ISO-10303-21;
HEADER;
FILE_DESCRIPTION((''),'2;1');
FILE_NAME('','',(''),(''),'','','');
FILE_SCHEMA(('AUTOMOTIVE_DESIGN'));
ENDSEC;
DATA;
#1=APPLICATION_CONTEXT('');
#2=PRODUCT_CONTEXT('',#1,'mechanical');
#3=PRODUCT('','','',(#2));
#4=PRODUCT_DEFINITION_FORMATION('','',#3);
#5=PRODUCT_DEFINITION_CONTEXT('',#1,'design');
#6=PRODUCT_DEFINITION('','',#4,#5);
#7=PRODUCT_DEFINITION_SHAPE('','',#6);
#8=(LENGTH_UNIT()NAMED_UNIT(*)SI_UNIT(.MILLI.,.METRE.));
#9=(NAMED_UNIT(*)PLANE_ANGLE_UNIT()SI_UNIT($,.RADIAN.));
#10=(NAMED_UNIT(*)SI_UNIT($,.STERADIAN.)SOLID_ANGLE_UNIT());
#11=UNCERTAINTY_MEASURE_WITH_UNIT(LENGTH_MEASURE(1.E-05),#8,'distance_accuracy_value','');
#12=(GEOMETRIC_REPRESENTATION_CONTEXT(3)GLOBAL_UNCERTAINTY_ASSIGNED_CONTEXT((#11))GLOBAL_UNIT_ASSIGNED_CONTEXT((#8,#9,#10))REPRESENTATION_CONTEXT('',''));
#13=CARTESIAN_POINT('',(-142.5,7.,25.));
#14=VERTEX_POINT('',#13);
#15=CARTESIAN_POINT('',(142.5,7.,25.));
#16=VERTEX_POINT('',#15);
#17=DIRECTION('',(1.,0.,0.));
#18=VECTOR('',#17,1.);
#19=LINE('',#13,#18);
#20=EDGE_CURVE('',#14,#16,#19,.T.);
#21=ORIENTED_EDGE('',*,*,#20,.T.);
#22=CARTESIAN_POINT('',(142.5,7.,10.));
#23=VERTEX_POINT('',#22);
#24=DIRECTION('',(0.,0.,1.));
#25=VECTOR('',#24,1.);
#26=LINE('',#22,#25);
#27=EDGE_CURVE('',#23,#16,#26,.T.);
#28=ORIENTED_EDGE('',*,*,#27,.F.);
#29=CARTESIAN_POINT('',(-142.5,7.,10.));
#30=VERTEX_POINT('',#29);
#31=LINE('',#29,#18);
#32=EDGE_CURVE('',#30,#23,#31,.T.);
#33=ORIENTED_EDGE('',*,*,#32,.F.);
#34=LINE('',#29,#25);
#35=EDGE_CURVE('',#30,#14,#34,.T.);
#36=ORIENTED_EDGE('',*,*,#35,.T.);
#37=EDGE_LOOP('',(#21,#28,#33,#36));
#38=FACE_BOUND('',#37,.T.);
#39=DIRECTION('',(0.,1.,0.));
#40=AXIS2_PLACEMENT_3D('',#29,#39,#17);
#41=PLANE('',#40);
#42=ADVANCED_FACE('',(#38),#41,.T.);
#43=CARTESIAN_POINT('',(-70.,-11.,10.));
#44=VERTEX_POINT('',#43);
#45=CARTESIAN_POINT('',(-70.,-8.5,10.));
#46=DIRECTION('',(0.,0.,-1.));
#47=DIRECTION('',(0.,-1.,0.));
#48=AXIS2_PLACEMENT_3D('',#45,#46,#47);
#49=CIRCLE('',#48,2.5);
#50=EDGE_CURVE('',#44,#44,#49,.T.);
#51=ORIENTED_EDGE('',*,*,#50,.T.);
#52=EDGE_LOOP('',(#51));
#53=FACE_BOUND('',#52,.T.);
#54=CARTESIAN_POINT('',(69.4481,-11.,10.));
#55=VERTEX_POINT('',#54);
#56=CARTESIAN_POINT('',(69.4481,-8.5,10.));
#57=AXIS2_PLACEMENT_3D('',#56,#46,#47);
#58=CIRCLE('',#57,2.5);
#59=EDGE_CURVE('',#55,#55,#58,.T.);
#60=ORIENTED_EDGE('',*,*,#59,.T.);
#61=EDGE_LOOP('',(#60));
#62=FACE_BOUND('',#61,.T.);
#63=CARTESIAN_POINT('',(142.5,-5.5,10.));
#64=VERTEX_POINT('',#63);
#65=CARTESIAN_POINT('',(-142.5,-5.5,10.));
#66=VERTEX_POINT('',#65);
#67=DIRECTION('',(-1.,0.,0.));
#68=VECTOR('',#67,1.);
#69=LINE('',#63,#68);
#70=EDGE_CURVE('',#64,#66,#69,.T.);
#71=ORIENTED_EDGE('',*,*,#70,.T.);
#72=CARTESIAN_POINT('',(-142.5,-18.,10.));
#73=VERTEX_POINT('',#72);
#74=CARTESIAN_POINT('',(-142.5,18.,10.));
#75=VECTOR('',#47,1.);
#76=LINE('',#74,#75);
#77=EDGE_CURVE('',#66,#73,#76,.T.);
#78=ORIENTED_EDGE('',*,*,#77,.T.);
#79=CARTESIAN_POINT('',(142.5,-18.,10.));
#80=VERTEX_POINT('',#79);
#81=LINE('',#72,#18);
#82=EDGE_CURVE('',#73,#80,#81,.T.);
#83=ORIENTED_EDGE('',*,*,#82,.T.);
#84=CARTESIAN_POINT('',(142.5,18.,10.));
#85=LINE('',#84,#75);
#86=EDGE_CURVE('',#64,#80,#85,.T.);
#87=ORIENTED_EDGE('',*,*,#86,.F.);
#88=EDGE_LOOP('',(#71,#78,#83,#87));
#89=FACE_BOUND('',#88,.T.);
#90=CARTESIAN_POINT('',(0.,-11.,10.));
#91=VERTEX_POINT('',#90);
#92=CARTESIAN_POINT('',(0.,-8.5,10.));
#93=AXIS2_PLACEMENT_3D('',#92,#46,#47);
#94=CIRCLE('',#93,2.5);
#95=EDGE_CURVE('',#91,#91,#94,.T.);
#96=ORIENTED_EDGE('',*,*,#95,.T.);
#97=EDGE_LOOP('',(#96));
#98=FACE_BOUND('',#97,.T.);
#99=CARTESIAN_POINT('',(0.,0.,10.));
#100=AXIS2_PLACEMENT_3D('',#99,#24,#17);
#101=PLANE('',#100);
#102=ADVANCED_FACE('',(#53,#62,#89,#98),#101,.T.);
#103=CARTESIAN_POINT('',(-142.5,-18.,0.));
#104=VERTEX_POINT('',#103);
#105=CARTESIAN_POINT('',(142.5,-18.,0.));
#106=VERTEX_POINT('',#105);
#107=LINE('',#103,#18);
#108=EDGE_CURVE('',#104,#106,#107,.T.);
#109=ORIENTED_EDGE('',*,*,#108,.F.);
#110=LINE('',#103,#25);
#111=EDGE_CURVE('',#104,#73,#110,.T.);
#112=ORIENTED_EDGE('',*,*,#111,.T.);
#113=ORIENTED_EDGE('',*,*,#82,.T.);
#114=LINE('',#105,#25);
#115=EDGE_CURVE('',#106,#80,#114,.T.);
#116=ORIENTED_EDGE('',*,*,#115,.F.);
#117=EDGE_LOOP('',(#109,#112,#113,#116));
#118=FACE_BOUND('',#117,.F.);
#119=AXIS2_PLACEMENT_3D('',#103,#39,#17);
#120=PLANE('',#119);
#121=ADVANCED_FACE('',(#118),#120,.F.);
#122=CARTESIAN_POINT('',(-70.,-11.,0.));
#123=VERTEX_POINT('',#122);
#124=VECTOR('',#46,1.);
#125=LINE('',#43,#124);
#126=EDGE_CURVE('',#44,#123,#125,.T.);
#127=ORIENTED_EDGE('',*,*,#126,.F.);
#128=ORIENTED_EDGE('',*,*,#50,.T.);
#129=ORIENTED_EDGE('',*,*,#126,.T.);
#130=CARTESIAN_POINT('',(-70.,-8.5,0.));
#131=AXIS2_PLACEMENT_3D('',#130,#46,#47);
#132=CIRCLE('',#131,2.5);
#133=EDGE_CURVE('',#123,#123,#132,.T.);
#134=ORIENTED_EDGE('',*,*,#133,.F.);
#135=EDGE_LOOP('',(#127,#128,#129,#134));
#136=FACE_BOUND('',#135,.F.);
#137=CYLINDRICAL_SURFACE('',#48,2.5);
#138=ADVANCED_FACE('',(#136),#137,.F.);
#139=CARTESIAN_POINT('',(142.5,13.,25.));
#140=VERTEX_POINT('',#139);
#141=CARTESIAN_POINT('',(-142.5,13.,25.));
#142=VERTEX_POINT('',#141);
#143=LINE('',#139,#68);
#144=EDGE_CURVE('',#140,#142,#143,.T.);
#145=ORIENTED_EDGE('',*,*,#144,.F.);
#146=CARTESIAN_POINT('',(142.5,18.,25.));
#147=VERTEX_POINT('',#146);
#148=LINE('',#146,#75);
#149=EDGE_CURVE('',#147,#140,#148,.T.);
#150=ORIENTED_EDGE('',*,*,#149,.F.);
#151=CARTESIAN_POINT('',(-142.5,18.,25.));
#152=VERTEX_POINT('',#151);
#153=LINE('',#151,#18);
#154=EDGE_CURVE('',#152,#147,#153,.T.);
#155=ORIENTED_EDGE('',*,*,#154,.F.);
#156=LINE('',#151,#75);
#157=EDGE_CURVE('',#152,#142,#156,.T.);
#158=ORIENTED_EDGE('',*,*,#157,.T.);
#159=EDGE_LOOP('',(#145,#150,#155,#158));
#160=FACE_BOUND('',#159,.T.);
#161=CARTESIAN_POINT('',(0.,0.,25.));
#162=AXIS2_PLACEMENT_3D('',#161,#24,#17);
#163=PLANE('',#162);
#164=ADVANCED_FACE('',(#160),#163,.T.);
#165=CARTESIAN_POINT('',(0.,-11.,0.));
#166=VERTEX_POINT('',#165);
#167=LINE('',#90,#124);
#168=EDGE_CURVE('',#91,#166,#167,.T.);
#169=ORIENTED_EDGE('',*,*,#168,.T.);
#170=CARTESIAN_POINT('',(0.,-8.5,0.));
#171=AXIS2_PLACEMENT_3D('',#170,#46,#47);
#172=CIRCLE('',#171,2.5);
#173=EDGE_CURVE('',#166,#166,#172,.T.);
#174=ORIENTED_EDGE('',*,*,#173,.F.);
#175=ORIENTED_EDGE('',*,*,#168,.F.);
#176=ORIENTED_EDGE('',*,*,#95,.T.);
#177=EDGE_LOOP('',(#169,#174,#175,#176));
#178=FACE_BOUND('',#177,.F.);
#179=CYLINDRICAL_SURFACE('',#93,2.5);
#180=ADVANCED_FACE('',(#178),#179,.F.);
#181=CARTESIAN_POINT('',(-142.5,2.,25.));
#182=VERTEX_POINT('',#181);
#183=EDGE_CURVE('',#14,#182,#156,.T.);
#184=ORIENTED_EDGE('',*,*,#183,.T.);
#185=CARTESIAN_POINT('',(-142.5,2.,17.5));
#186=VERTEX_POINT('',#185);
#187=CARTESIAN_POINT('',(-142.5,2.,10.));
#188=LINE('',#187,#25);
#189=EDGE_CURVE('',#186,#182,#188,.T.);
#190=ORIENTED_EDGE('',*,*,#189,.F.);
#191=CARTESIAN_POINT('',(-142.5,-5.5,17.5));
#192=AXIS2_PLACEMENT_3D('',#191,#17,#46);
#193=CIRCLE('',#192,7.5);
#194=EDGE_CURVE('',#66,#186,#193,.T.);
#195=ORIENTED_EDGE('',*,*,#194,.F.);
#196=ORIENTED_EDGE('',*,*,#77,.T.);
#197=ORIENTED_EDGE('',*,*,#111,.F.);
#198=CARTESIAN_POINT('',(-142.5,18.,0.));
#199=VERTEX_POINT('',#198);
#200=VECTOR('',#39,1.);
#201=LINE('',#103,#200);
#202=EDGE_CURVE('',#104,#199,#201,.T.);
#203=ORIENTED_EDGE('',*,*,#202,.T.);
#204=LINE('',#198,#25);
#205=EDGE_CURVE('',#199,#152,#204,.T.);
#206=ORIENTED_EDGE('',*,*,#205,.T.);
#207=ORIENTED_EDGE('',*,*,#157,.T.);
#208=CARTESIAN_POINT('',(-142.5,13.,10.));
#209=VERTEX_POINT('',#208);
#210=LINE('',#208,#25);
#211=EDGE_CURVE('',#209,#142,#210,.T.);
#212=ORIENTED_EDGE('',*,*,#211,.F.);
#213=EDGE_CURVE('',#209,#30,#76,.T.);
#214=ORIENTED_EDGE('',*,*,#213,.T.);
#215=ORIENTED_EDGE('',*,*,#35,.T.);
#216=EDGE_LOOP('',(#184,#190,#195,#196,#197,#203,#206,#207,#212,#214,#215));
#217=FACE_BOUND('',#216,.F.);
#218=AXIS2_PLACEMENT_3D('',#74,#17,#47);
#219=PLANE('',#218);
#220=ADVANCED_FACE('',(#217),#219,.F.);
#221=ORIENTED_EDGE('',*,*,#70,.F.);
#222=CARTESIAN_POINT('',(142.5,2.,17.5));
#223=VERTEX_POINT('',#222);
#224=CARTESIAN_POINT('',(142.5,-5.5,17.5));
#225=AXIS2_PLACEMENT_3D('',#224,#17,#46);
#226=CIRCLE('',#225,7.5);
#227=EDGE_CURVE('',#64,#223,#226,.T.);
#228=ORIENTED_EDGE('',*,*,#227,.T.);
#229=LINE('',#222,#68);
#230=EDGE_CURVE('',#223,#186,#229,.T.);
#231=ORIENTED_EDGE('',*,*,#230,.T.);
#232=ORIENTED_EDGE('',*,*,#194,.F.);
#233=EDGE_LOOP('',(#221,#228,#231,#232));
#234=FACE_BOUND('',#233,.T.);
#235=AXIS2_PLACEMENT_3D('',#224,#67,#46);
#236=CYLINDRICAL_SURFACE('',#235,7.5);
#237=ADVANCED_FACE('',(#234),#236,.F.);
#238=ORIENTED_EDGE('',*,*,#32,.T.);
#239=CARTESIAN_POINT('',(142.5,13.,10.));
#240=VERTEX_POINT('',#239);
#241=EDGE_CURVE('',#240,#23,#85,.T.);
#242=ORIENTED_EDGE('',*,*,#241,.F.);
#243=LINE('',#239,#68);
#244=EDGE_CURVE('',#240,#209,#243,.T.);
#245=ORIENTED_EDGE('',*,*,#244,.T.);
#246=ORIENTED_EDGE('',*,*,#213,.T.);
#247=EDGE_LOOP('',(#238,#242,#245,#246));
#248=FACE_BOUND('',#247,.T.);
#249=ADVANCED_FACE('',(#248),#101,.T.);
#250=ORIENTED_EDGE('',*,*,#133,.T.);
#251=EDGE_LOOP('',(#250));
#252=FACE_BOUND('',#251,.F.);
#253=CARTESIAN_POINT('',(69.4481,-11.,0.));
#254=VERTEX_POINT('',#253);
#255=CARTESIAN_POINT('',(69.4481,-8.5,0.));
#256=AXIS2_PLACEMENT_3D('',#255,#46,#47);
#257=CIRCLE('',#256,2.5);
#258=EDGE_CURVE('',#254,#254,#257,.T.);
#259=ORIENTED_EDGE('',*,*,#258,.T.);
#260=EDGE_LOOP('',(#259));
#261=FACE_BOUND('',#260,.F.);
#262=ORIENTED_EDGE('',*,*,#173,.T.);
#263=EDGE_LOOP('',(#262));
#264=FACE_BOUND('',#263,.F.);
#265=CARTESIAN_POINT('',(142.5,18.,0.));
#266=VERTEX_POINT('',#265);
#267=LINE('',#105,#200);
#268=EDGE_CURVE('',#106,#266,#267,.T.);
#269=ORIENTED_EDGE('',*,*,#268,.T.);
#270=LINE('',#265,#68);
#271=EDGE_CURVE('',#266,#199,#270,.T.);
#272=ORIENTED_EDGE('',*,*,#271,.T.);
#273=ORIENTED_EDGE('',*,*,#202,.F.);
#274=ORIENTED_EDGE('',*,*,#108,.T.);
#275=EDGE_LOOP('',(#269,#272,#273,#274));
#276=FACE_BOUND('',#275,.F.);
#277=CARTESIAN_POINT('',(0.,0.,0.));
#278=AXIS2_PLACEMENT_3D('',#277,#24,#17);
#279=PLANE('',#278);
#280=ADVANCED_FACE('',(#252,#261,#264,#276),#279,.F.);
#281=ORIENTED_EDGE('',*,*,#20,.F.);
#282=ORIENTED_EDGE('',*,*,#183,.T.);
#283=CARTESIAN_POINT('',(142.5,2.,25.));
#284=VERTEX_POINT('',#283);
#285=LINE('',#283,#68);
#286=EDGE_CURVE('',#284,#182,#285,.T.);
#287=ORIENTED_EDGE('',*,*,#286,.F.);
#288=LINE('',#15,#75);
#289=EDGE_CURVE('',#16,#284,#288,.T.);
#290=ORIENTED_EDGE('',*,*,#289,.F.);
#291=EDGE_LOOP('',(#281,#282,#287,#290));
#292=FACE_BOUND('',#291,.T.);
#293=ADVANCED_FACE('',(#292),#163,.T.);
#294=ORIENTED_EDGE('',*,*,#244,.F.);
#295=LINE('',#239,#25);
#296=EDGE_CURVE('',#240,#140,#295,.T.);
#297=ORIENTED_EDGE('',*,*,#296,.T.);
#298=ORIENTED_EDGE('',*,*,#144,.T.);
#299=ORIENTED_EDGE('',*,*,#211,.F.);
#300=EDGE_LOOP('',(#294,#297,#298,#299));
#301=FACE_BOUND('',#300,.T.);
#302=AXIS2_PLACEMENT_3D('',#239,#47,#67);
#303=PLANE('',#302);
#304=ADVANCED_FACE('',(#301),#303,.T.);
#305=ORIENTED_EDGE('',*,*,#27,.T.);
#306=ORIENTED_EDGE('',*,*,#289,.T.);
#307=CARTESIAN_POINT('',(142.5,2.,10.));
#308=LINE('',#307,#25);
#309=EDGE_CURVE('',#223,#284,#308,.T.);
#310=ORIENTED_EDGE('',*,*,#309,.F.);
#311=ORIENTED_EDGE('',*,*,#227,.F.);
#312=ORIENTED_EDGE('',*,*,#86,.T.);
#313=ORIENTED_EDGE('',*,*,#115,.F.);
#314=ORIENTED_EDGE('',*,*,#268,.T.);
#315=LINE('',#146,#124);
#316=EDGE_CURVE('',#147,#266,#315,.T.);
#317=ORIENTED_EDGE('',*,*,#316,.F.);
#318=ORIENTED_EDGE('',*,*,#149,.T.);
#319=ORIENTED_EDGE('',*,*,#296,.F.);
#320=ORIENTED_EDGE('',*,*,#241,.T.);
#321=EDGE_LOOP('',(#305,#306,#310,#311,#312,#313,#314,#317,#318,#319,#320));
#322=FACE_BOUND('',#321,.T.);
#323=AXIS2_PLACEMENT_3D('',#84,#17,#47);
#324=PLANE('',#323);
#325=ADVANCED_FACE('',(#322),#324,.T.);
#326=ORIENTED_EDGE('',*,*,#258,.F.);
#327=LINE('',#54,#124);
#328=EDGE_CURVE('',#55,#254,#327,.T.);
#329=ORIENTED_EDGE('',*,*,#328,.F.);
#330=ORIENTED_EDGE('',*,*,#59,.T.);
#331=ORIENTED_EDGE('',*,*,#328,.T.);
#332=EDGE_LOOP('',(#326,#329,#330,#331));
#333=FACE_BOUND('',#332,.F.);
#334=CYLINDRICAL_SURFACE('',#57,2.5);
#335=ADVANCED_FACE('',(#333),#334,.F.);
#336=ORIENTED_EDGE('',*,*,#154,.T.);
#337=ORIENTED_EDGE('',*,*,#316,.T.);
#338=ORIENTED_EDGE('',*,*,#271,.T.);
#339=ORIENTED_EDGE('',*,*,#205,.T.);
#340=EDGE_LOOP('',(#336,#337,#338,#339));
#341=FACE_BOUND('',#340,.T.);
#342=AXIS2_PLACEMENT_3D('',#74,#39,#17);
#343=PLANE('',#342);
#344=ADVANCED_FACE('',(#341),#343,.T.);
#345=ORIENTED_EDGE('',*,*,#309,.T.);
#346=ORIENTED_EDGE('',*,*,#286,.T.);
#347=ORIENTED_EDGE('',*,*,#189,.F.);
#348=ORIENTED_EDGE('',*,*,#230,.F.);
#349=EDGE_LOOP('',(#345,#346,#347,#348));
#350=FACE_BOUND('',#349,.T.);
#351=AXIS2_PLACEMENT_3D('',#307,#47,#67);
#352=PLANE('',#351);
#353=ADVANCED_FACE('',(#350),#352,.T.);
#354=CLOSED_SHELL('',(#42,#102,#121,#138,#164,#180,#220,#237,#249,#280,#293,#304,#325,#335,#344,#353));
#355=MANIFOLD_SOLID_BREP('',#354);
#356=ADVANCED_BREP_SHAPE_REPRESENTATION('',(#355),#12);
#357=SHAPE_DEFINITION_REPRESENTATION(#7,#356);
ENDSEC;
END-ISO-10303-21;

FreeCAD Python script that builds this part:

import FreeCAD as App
import Part
import Sketcher

V = App.Vector
Q = App.Units.Quantity


def edges_at(feature, points):
    """Names of the edges that pass closest to the given points."""
    edges = feature.Shape.Edges
    near = lambda p: min(range(len(edges)), key=lambda i: edges[i].distToShape(Part.Vertex(*p))[0])
    return sorted({f"Edge{near(p) + 1}" for p in points})


def add_polygon(sketch, points):
    """Adds a closed chain of lines whose ends are joined by coincident constraints."""
    first, n = sketch.GeometryCount, len(points)
    for a, b in zip(points, points[1:] + points[:1]):
        sketch.addGeometry(Part.LineSegment(App.Vector(*a, 0), App.Vector(*b, 0)), False)
    for i in range(n):
        sketch.addConstraint(Sketcher.Constraint("Coincident", first + i, 2, first + (i + 1) % n, 1))

doc = App.newDocument("Part")
body = doc.addObject("PartDesign::Body", "Body")

# Sketch on XY plane
sketch1 = body.newObject("Sketcher::SketchObject", "Sketch")
sketch1.AttachmentSupport = (doc.getObject("XY_Plane"), [""])
sketch1.MapMode = "FlatFace"
add_polygon(sketch1, [(142, 18), (-142, 18), (-142, -18), (142, -18)])  # lines 0-3
sketch1.addConstraint(Sketcher.Constraint("Horizontal", 0))
sketch1.addConstraint(Sketcher.Constraint("Vertical", 1))
sketch1.addConstraint(Sketcher.Constraint("Horizontal", 2))
sketch1.addConstraint(Sketcher.Constraint("Vertical", 3))
sketch1.addConstraint(Sketcher.Constraint("Symmetric", 0, 2, 2, 2, -1, 1))
sketch1.addConstraint(Sketcher.Constraint("DistanceX", 0, 2, 0, 1, Q("285 mm")))
sketch1.addConstraint(Sketcher.Constraint("DistanceY", 1, 2, 1, 1, Q("36 mm")))
pad1 = body.newObject("PartDesign::Pad", "Pad")
pad1.Profile = sketch1
pad1.Length = 10

# Sketch on XY plane
sketch2 = body.newObject("Sketcher::SketchObject", "Sketch001")
sketch2.AttachmentSupport = (doc.getObject("XY_Plane"), [""])
sketch2.MapMode = "FlatFace"
sketch2.AttachmentOffset = App.Placement(V(0, 0, 10), App.Rotation())
add_polygon(sketch2, [(142, 18), (-142, 18), (-142, 13), (142, 13)])  # lines 0-3
sketch2.addConstraint(Sketcher.Constraint("Horizontal", 0))
sketch2.addConstraint(Sketcher.Constraint("Vertical", 1))
sketch2.addConstraint(Sketcher.Constraint("Horizontal", 2))
sketch2.addConstraint(Sketcher.Constraint("Vertical", 3))
sketch2.addConstraint(Sketcher.Constraint("DistanceX", 0, 2, 0, 1, Q("285 mm")))
sketch2.addConstraint(Sketcher.Constraint("DistanceY", 1, 2, 1, 1, Q("5 mm")))
sketch2.addConstraint(Sketcher.Constraint("DistanceY", -1, 1, 0, 2, Q("18 mm")))
sketch2.addConstraint(Sketcher.Constraint("DistanceX", 0, 2, -1, 1, Q("142.5 mm")))
pad2 = body.newObject("PartDesign::Pad", "Pad001")
pad2.Profile = sketch2
pad2.Length = 15

# Sketch on XY plane
sketch3 = body.newObject("Sketcher::SketchObject", "Sketch002")
sketch3.AttachmentSupport = (doc.getObject("XY_Plane"), [""])
sketch3.MapMode = "FlatFace"
sketch3.AttachmentOffset = App.Placement(V(0, 0, 10), App.Rotation())
add_polygon(sketch3, [(142, 7), (-142, 7), (-142, 2), (142, 2)])  # lines 0-3
sketch3.addConstraint(Sketcher.Constraint("Horizontal", 0))
sketch3.addConstraint(Sketcher.Constraint("Vertical", 1))
sketch3.addConstraint(Sketcher.Constraint("Horizontal", 2))
sketch3.addConstraint(Sketcher.Constraint("Vertical", 3))
sketch3.addConstraint(Sketcher.Constraint("DistanceX", 0, 2, 0, 1, Q("285 mm")))
sketch3.addConstraint(Sketcher.Constraint("DistanceY", 1, 2, 1, 1, Q("5 mm")))
sketch3.addConstraint(Sketcher.Constraint("DistanceY", -1, 1, 0, 2, Q("7 mm")))
sketch3.addConstraint(Sketcher.Constraint("DistanceX", 0, 2, -1, 1, Q("142.5 mm")))
pad3 = body.newObject("PartDesign::Pad", "Pad002")
pad3.Profile = sketch3
pad3.Length = 15
doc.recompute()

fillet = body.newObject("PartDesign::Fillet", "Fillet")
fillet.Base = (pad3, edges_at(pad3, [(0, 2, 10)]))
fillet.Radius = 7.5

# Sketch on XY plane
sketch4 = body.newObject("Sketcher::SketchObject", "Sketch003")
sketch4.AttachmentSupport = (doc.getObject("XY_Plane"), [""])
sketch4.MapMode = "FlatFace"
sketch4.AttachmentOffset = App.Placement(V(0, 0, 10), App.Rotation())
sketch4.addGeometry(Part.Circle(V(-70, -8.5, 0), V(0, 0, 1), 2.5), False)
sketch4.addConstraint(Sketcher.Constraint("Diameter", 0, Q("5 mm")))
sketch4.addConstraint(Sketcher.Constraint("DistanceX", 0, 3, -1, 1, Q("70 mm")))
sketch4.addConstraint(Sketcher.Constraint("DistanceY", 0, 3, -1, 1, Q("8.5 mm")))
doc.recompute()
hole = body.newObject("PartDesign::Hole", "Hole")
hole.Profile = sketch4
hole.ThreadType = "None"
hole.Diameter = 5
hole.DepthType = "ThroughAll"

# Sketch on XY plane
sketch5 = body.newObject("Sketcher::SketchObject", "Sketch004")
sketch5.AttachmentSupport = (doc.getObject("XY_Plane"), [""])
sketch5.MapMode = "FlatFace"
sketch5.AttachmentOffset = App.Placement(V(0, 0, 10), App.Rotation())
sketch5.addGeometry(Part.Circle(V(0, -8.5, 0), V(0, 0, 1), 2.5), False)
sketch5.addConstraint(Sketcher.Constraint("PointOnObject", 0, 3, -2))
sketch5.addConstraint(Sketcher.Constraint("Diameter", 0, Q("5 mm")))
sketch5.addConstraint(Sketcher.Constraint("DistanceY", 0, 3, -1, 1, Q("8.5 mm")))
doc.recompute()
hole2 = body.newObject("PartDesign::Hole", "Hole001")
hole2.Profile = sketch5
hole2.ThreadType = "None"
hole2.Diameter = 5
hole2.DepthType = "ThroughAll"

# Sketch on XY plane
sketch6 = body.newObject("Sketcher::SketchObject", "Sketch005")
sketch6.AttachmentSupport = (doc.getObject("XY_Plane"), [""])
sketch6.MapMode = "FlatFace"
sketch6.AttachmentOffset = App.Placement(V(0, 0, 10), App.Rotation())
sketch6.addGeometry(Part.Circle(V(69.4, -8.5, 0), V(0, 0, 1), 2.5), False)
sketch6.addConstraint(Sketcher.Constraint("Diameter", 0, Q("5 mm")))
sketch6.addConstraint(Sketcher.Constraint("DistanceY", 0, 3, -1, 1, Q("8.5 mm")))
sketch6.addConstraint(Sketcher.Constraint("DistanceX", -1, 1, 0, 3, Q("69.448 mm")))
doc.recompute()
hole3 = body.newObject("PartDesign::Hole", "Hole002")
hole3.Profile = sketch6
hole3.ThreadType = "None"
hole3.Diameter = 5
hole3.DepthType = "ThroughAll"

doc.recompute()
